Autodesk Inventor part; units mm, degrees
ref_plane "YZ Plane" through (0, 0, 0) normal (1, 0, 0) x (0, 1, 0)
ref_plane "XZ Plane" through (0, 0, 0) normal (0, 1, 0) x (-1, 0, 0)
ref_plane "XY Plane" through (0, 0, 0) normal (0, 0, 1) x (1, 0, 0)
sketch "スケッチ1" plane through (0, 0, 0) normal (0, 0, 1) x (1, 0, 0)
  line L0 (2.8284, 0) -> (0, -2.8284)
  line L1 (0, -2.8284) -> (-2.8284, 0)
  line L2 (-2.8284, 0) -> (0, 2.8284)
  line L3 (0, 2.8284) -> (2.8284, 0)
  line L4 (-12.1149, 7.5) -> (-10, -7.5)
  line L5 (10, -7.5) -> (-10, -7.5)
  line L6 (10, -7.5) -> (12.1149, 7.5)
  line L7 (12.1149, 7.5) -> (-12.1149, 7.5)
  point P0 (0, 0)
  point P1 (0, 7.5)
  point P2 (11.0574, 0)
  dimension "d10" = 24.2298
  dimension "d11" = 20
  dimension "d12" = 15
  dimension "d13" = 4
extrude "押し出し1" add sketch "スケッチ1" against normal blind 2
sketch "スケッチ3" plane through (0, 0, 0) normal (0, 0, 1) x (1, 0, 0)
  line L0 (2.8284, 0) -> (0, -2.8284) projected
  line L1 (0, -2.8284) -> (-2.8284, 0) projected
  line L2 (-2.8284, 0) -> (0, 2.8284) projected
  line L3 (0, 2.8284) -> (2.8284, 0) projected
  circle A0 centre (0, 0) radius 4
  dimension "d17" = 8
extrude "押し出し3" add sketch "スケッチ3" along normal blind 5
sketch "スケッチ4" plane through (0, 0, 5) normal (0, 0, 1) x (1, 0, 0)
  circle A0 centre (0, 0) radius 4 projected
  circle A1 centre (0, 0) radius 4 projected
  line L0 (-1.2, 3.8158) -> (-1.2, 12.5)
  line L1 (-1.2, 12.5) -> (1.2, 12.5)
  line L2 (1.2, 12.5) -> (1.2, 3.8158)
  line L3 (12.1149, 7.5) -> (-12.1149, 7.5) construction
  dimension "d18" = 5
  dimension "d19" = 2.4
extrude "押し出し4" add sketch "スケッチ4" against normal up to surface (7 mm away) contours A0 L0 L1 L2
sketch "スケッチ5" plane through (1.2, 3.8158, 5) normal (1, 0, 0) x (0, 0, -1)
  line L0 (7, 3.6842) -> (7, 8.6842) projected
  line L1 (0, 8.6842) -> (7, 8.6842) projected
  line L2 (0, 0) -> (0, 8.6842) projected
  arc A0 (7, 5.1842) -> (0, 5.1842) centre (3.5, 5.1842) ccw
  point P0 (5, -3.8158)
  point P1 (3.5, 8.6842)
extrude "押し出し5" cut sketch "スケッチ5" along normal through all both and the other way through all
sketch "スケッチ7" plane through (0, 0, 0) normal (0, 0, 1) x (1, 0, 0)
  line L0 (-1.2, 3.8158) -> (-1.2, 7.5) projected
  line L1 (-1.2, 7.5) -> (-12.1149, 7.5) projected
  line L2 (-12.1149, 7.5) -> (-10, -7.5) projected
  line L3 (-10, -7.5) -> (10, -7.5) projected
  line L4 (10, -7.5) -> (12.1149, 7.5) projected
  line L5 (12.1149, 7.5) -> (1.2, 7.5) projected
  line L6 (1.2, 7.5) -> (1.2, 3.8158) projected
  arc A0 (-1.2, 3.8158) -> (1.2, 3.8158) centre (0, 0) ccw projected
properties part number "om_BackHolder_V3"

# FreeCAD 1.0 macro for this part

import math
import FreeCAD as App
import Part
import Sketcher
Q = App.Units.Quantity

doc = App.newDocument("Part")
body = doc.addObject("PartDesign::Body", "Body")

sketch1 = body.newObject("Sketcher::SketchObject", "Sketch")
sketch1.AttachmentSupport = (doc.getObject("XY_Plane"), [""])
sketch1.MapMode = "FlatFace"
sketch1.addGeometry([
    Part.LineSegment(App.Vector(12.1, 7.5, 0), App.Vector(-12.1, 7.5, 0)),
    Part.LineSegment(App.Vector(-12.1, 7.5, 0), App.Vector(-10, -7.5, 0)),
    Part.LineSegment(App.Vector(-10, -7.5, 0), App.Vector(10, -7.5, 0)),
    Part.LineSegment(App.Vector(10, -7.5, 0), App.Vector(12.1, 7.5, 0)),
    Part.LineSegment(App.Vector(0, 2.8, 0), App.Vector(2.8, 0, 0)),
    Part.LineSegment(App.Vector(2.8, 0, 0), App.Vector(0, -2.8, 0)),
    Part.LineSegment(App.Vector(0, -2.8, 0), App.Vector(-2.8, 0, 0)),
    Part.LineSegment(App.Vector(-2.8, 0, 0), App.Vector(0, 2.8, 0)),
], False)
sketch1.addConstraint([
    Sketcher.Constraint("Coincident", 0, 2, 1, 1),
    Sketcher.Constraint("Coincident", 1, 2, 2, 1),
    Sketcher.Constraint("Coincident", 2, 2, 3, 1),
    Sketcher.Constraint("Coincident", 3, 2, 0, 1),
    Sketcher.Constraint("Coincident", 4, 2, 5, 1),
    Sketcher.Constraint("Coincident", 5, 2, 6, 1),
    Sketcher.Constraint("Coincident", 6, 2, 7, 1),
    Sketcher.Constraint("Coincident", 7, 2, 4, 1),
    Sketcher.Constraint("Horizontal", 0),
    Sketcher.Constraint("Horizontal", 2),
    Sketcher.Constraint("Symmetric", 4, 2, 6, 2, -1, 1),
    Sketcher.Constraint("Symmetric", 5, 2, 7, 2, -1, 1),
    Sketcher.Constraint("PointOnObject", 4, 2, -1),
    Sketcher.Constraint("PointOnObject", 5, 2, -2),
    Sketcher.Constraint("Perpendicular", 4, 5),
    Sketcher.Constraint("Equal", 1, 3),
    Sketcher.Constraint("DistanceX", 2, 1, 2, 2, Q("20 mm")),
    Sketcher.Constraint("Distance", 4, Q("4 mm")),
    Sketcher.Constraint("DistanceY", 1, 2, 0, 2, Q("15 mm")),
    Sketcher.Constraint("DistanceX", 0, 2, 0, 1, Q("24.2298 mm")),
    Sketcher.Constraint("DistanceX", 1, 2, -1, 1, Q("10 mm")),
    Sketcher.Constraint("DistanceY", -1, 1, 0, 2, Q("7.5 mm")),
])
pad1 = body.newObject("PartDesign::Pad", "Pad")
pad1.Profile = sketch1
pad1.Length = 2
pad1.Reversed = True

sketch2 = body.newObject("Sketcher::SketchObject", "Sketch001")
sketch2.AttachmentSupport = (doc.getObject("XY_Plane"), [""])
sketch2.MapMode = "FlatFace"
sketch2.addGeometry([
    Part.Circle(App.Vector(0, 0, 0), App.Vector(0, 0, 1), 4),
    Part.LineSegment(App.Vector(0, 2.8, 0), App.Vector(2.8, 0, 0)),
    Part.LineSegment(App.Vector(2.8, 0, 0), App.Vector(0, -2.8, 0)),
    Part.LineSegment(App.Vector(0, -2.8, 0), App.Vector(-2.8, 0, 0)),
    Part.LineSegment(App.Vector(-2.8, 0, 0), App.Vector(0, 2.8, 0)),
], False)
sketch2.addConstraint([
    Sketcher.Constraint("Coincident", 1, 2, 2, 1),
    Sketcher.Constraint("Coincident", 2, 2, 3, 1),
    Sketcher.Constraint("Coincident", 3, 2, 4, 1),
    Sketcher.Constraint("Coincident", 4, 2, 1, 1),
    Sketcher.Constraint("Coincident", 0, 3, -1, 1),
    Sketcher.Constraint("Symmetric", 1, 2, 3, 2, -1, 1),
    Sketcher.Constraint("Symmetric", 2, 2, 4, 2, -1, 1),
    Sketcher.Constraint("PointOnObject", 1, 2, -1),
    Sketcher.Constraint("PointOnObject", 2, 2, -2),
    Sketcher.Constraint("Perpendicular", 1, 2),
    Sketcher.Constraint("Diameter", 0, Q("8 mm")),
    Sketcher.Constraint("Distance", 1, Q("4 mm")),
])
pad2 = body.newObject("PartDesign::Pad", "Pad001")
pad2.Profile = sketch2
pad2.Length = 5

sketch3 = body.newObject("Sketcher::SketchObject", "Sketch002")
sketch3.AttachmentSupport = (doc.getObject("XY_Plane"), [""])
sketch3.MapMode = "FlatFace"
sketch3.AttachmentOffset = App.Placement(App.Vector(0, 0, 5), App.Rotation())
sketch3.addGeometry([
    Part.ArcOfCircle(Part.Circle(App.Vector(0, 0, 0), App.Vector(0, 0, 1), 4), math.radians(73), math.radians(107)),
    Part.LineSegment(App.Vector(1.2, 3.8, 0), App.Vector(1.2, 12.5, 0)),
    Part.LineSegment(App.Vector(1.2, 12.5, 0), App.Vector(-1.2, 12.5, 0)),
    Part.LineSegment(App.Vector(-1.2, 12.5, 0), App.Vector(-1.2, 3.8, 0)),
], False)
sketch3.addConstraint([
    Sketcher.Constraint("Coincident", 0, 1, 1, 1),
    Sketcher.Constraint("Coincident", 1, 2, 2, 1),
    Sketcher.Constraint("Coincident", 2, 2, 3, 1),
    Sketcher.Constraint("Coincident", 3, 2, 0, 2),
    Sketcher.Constraint("Vertical", 1),
    Sketcher.Constraint("Horizontal", 2),
    Sketcher.Constraint("Vertical", 3),
    Sketcher.Constraint("Coincident", 0, 3, -1, 1),
    Sketcher.Constraint("Horizontal", 0, 1, 3, 2),
    Sketcher.Constraint("DistanceX", 2, 2, 2, 1, Q("2.4 mm")),
    Sketcher.Constraint("Radius", 0, Q("4 mm")),
    Sketcher.Constraint("DistanceY", -1, 1, 1, 2, Q("12.5 mm")),
])
pad3 = body.newObject("PartDesign::Pad", "Pad002")
pad3.Profile = sketch3
pad3.Length = 7
pad3.Reversed = True

sketch4 = body.newObject("Sketcher::SketchObject", "Sketch003")
sketch4.AttachmentSupport = (doc.getObject("YZ_Plane"), [""])
sketch4.MapMode = "FlatFace"
sketch4.AttachmentOffset = App.Placement(App.Vector(0, 0, 1.2), App.Rotation())
sketch4.addGeometry([
    Part.ArcOfCircle(Part.Circle(App.Vector(9, 1.5, 0), App.Vector(0, 0, 1), 3.5), math.radians(-90), math.radians(0)),
    Part.LineSegment(App.Vector(9, -2, 0), App.Vector(12.5, -2, 0)),
    Part.LineSegment(App.Vector(12.5, -2, 0), App.Vector(12.5, 1.5, 0)),
    Part.ArcOfCircle(Part.Circle(App.Vector(9, 1.5, 0), App.Vector(0, 0, 1), 3.5), math.radians(0), math.radians(90)),
    Part.LineSegment(App.Vector(12.5, 1.5, 0), App.Vector(12.5, 5, 0)),
    Part.LineSegment(App.Vector(12.5, 5, 0), App.Vector(9, 5, 0)),
], False)
sketch4.addConstraint([
    Sketcher.Constraint("Tangent", 0, 1, 1, 1),
    Sketcher.Constraint("Coincident", 1, 2, 2, 1),
    Sketcher.Constraint("Tangent", 2, 2, 0, 2),
    Sketcher.Constraint("Tangent", 3, 1, 4, 1),
    Sketcher.Constraint("Coincident", 4, 2, 5, 1),
    Sketcher.Constraint("Tangent", 5, 2, 3, 2),
    Sketcher.Constraint("Horizontal", 1),
    Sketcher.Constraint("Vertical", 2),
    Sketcher.Constraint("Vertical", 4),
    Sketcher.Constraint("Horizontal", 5),
    Sketcher.Constraint("Coincident", 3, 3, 0, 3),
    Sketcher.Constraint("Equal", 0, 3),
    Sketcher.Constraint("Radius", 0, Q("3.5 mm")),
    Sketcher.Constraint("DistanceX", -1, 1, 0, 3, Q("9 mm")),
    Sketcher.Constraint("DistanceY", 0, 1, -1, 1, Q("2 mm")),
])
pocket1 = body.newObject("PartDesign::Pocket", "Pocket")
pocket1.Profile = sketch4
pocket1.Type = "ThroughAll"
pocket1.Midplane = True

doc.recompute()
